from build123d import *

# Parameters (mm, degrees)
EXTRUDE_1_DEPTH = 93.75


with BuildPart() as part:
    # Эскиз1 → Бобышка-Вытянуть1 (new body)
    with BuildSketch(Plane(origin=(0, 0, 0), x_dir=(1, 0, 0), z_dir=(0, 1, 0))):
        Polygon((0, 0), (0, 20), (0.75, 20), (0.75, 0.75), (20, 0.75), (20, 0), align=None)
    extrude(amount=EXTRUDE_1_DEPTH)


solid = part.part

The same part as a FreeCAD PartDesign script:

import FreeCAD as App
import Part
import Sketcher
from FreeCAD import Vector


def add_polygon(sketch, points):
    """Adds a closed chain of lines whose ends are joined by coincident constraints."""
    first, n = sketch.GeometryCount, len(points)
    for a, b in zip(points, points[1:] + points[:1]):
        sketch.addGeometry(Part.LineSegment(App.Vector(*a, 0), App.Vector(*b, 0)), False)
    for i in range(n):
        sketch.addConstraint(Sketcher.Constraint("Coincident", first + i, 2, first + (i + 1) % n, 1))

doc = App.newDocument("Part")
body = doc.addObject("PartDesign::Body", "Body")

# Sketch on XZ plane
sketch1 = doc.addObject("Sketcher::SketchObject", "Sketch")
body.addObject(sketch1)
sketch1.AttachmentSupport = (doc.XZ_Plane, [""])
sketch1.MapMode = "FlatFace"
add_polygon(sketch1, [(0, -20), (0, 0), (20, 0), (20, -0.75), (0.75, -0.75), (0.75, -20)])  # lines 0-5
sketch1.addConstraint(Sketcher.Constraint("Vertical", 0))
sketch1.addConstraint(Sketcher.Constraint("Horizontal", 1))
sketch1.addConstraint(Sketcher.Constraint("Vertical", 2))
sketch1.addConstraint(Sketcher.Constraint("Horizontal", 3))
sketch1.addConstraint(Sketcher.Constraint("Vertical", 4))
sketch1.addConstraint(Sketcher.Constraint("Horizontal", 5))
sketch1.addConstraint(Sketcher.Constraint("Coincident", 0, 2, -1, 1))
sketch1.addConstraint(Sketcher.Constraint("Equal", 1, 0))
sketch1.addConstraint(Sketcher.Constraint("Equal", 5, 2))
sketch1.addConstraint(Sketcher.Constraint("DistanceX", 1, 1, 1, 2, 20.0))
sketch1.addConstraint(Sketcher.Constraint("DistanceX", 3, 2, 3, 1, 19.25))
pad1 = doc.addObject("PartDesign::Pad", "Pad")
body.addObject(pad1)
pad1.Profile = sketch1
pad1.Length = 93.75
pad1.Reversed = True

doc.recompute()
